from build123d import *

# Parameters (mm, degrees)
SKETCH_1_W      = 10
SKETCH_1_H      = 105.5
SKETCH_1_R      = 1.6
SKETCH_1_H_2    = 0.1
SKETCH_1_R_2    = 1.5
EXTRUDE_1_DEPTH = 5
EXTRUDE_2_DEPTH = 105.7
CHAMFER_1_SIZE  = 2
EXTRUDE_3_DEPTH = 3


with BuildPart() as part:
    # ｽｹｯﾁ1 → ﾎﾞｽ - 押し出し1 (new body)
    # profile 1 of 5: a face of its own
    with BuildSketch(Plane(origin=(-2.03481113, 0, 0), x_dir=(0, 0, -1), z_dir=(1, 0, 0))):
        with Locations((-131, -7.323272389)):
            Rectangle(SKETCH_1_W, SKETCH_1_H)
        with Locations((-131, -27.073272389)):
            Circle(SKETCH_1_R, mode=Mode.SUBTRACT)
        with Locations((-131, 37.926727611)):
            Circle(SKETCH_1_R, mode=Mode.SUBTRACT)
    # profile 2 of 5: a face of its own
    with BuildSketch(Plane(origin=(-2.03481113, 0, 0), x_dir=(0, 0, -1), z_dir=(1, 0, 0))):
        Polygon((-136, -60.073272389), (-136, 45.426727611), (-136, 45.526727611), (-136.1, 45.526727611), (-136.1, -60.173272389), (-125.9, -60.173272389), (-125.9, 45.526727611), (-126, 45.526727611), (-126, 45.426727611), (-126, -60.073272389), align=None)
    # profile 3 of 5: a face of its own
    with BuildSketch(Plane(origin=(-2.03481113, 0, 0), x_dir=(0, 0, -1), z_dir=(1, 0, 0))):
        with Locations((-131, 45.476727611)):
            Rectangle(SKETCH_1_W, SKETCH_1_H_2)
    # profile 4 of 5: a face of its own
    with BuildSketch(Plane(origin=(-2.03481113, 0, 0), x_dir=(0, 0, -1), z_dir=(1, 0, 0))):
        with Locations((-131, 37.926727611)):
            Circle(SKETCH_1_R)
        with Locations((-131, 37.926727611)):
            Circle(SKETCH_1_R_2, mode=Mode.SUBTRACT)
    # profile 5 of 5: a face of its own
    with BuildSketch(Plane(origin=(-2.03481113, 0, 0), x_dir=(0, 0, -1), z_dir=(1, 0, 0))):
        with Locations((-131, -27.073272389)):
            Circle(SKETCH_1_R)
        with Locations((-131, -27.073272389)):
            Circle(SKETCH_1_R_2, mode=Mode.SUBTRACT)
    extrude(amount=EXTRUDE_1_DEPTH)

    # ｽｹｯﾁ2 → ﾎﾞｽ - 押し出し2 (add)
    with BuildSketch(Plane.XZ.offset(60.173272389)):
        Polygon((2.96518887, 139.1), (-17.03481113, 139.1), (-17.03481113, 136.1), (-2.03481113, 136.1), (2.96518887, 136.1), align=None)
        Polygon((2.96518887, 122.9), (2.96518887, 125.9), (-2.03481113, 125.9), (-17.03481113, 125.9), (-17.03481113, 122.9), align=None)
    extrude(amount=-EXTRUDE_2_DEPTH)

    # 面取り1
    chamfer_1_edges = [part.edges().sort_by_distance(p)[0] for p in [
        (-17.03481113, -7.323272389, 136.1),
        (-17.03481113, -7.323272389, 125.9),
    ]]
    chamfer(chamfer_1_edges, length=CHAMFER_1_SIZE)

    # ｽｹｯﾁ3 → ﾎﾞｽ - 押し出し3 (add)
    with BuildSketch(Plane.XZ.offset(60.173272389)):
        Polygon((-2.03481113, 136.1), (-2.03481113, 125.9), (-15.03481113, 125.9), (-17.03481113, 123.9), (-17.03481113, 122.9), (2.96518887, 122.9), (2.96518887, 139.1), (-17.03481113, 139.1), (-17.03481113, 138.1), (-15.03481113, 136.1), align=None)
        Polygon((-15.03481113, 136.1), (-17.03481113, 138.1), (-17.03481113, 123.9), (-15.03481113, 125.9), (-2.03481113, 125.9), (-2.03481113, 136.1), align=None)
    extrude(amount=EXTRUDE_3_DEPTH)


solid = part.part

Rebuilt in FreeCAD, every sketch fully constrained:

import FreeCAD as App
import Part
import Sketcher
from FreeCAD import Vector


def edges_at(feature, points):
    """Names of the edges that pass closest to the given points."""
    edges = feature.Shape.Edges
    near = lambda p: min(range(len(edges)), key=lambda i: edges[i].distToShape(Part.Vertex(*p))[0])
    return sorted({f"Edge{near(p) + 1}" for p in points})


def add_polygon(sketch, points):
    """Adds a closed chain of lines whose ends are joined by coincident constraints."""
    first, n = sketch.GeometryCount, len(points)
    for a, b in zip(points, points[1:] + points[:1]):
        sketch.addGeometry(Part.LineSegment(App.Vector(*a, 0), App.Vector(*b, 0)), False)
    for i in range(n):
        sketch.addConstraint(Sketcher.Constraint("Coincident", first + i, 2, first + (i + 1) % n, 1))

doc = App.newDocument("Part")
params = doc.addObject("Spreadsheet::Sheet", "Params")
for row, (alias, value) in enumerate([
    ("sketch1_diameter", "3 mm"),
    ("sketch1_width", "105.7 mm"),
    ("sketch1_height", "10.2 mm"),
    ("pad1_length", "5 mm"),
    ("sketch2_width", "20 mm"),
    ("sketch2_height", "3 mm"),
    ("pad2_length", "105.7 mm"),
    ("chamfer_size", "2 mm"),
    ("sketch3_width", "20 mm"),
    ("sketch3_height", "16.2 mm"),
    ("pad3_length", "3 mm"),
], start=1):
    params.set(f"A{row}", alias)
    params.set(f"B{row}", "=" + value)
    params.setAlias(f"B{row}", alias)

body = doc.addObject("PartDesign::Body", "Body")

# Sketch on YZ plane
sketch1 = doc.addObject("Sketcher::SketchObject", "Sketch")
body.addObject(sketch1)
sketch1.AttachmentSupport = (doc.YZ_Plane, [""])
sketch1.MapMode = "FlatFace"
sketch1.AttachmentOffset = App.Placement(Vector(0, 0, -2.034811), App.Rotation())
add_polygon(sketch1, [(45.526728, 136.1), (-60.173272, 136.1), (-60.173272, 125.9), (45.526728, 125.9)])  # lines 0-3
sketch1.addGeometry(Part.Circle(Vector(-27.073272, 131, 0), Vector(0, 0, 1), 1.5), False)  # 4
sketch1.addGeometry(Part.Circle(Vector(37.926728, 131, 0), Vector(0, 0, 1), 1.5), False)  # 5
sketch1.addConstraint([
    Sketcher.Constraint("Horizontal", 0),
    Sketcher.Constraint("Vertical", 1),
    Sketcher.Constraint("Horizontal", 2),
    Sketcher.Constraint("Vertical", 3),
    Sketcher.Constraint("Equal", 4, 5),
    Sketcher.Constraint("Horizontal", 4, 3, 5, 3),
    Sketcher.Constraint("Diameter", 4, 3.0),
    Sketcher.Constraint("DistanceX", 0, 2, 0, 1, 105.7),
    Sketcher.Constraint("DistanceY", 1, 2, 1, 1, 10.2),
    Sketcher.Constraint("DistanceY", -1, 1, 4, 3, 131.0),
    Sketcher.Constraint("DistanceX", 4, 3, 5, 3, 65.0),
    Sketcher.Constraint("DistanceY", -1, 1, 0, 2, 136.1),
    Sketcher.Constraint("DistanceX", 0, 2, 4, 3, 33.1),
    Sketcher.Constraint("DistanceX", 4, 3, -1, 1, 27.073272),
])
sketch1.setExpression("Constraints[10]", "Params.sketch1_diameter")
sketch1.setExpression("Constraints[11]", "Params.sketch1_width")
sketch1.setExpression("Constraints[12]", "Params.sketch1_height")
pad1 = doc.addObject("PartDesign::Pad", "Pad")
body.addObject(pad1)
pad1.Profile = sketch1
pad1.setExpression("Length", "Params.pad1_length")

# Sketch on XZ plane
sketch2 = doc.addObject("Sketcher::SketchObject", "Sketch001")
body.addObject(sketch2)
sketch2.AttachmentSupport = (doc.XZ_Plane, [""])
sketch2.MapMode = "FlatFace"
sketch2.AttachmentOffset = App.Placement(Vector(0, 0, 60.173272), App.Rotation())
add_polygon(sketch2, [(2.965189, 139.1), (-17.034811, 139.1), (-17.034811, 136.1), (2.965189, 136.1)])  # lines 0-3
add_polygon(sketch2, [(2.965189, 122.9), (2.965189, 125.9), (-17.034811, 125.9), (-17.034811, 122.9)])  # lines 4-7
sketch2.addConstraint([
    Sketcher.Constraint("Horizontal", 0),
    Sketcher.Constraint("Vertical", 1),
    Sketcher.Constraint("Horizontal", 2),
    Sketcher.Constraint("Vertical", 3),
    Sketcher.Constraint("Vertical", 4),
    Sketcher.Constraint("Horizontal", 5),
    Sketcher.Constraint("Vertical", 6),
    Sketcher.Constraint("Horizontal", 7),
    Sketcher.Constraint("Vertical", 3, 2, 4, 2),
    Sketcher.Constraint("Vertical", 1, 2, 5, 2),
    Sketcher.Constraint("Equal", 3, 4),
    Sketcher.Constraint("DistanceX", 0, 2, 0, 1, 20.0),
    Sketcher.Constraint("DistanceY", 1, 2, 1, 1, 3.0),
    Sketcher.Constraint("DistanceY", -1, 1, 0, 2, 139.1),
    Sketcher.Constraint("DistanceY", -1, 1, 4, 2, 125.9),
    Sketcher.Constraint("DistanceX", 0, 2, -1, 1, 17.034811),
])
sketch2.setExpression("Constraints[19]", "Params.sketch2_width")
sketch2.setExpression("Constraints[20]", "Params.sketch2_height")
pad2 = doc.addObject("PartDesign::Pad", "Pad001")
body.addObject(pad2)
pad2.Profile = sketch2
pad2.setExpression("Length", "Params.pad2_length")
pad2.Reversed = True
doc.recompute()

chamfer = doc.addObject("PartDesign::Chamfer", "Chamfer")
body.addObject(chamfer)
chamfer.Base = (pad2, edges_at(pad2, [(-17.035, -7.323, 136.1), (-17.035, -7.323, 125.9)]))
chamfer.setExpression("Size", "Params.chamfer_size")

# Sketch on XZ plane
sketch3 = doc.addObject("Sketcher::SketchObject", "Sketch002")
body.addObject(sketch3)
sketch3.AttachmentSupport = (doc.XZ_Plane, [""])
sketch3.MapMode = "FlatFace"
sketch3.AttachmentOffset = App.Placement(Vector(0, 0, 60.173272), App.Rotation())
add_polygon(sketch3, [(-17.034811, 122.9), (2.965189, 122.9), (2.965189, 139.1), (-17.034811, 139.1)])  # lines 0-3
sketch3.addConstraint([
    Sketcher.Constraint("Horizontal", 0),
    Sketcher.Constraint("Vertical", 1),
    Sketcher.Constraint("Horizontal", 2),
    Sketcher.Constraint("Vertical", 3),
    Sketcher.Constraint("DistanceX", 0, 1, 0, 2, 20.0),
    Sketcher.Constraint("DistanceY", 1, 1, 1, 2, 16.2),
    Sketcher.Constraint("DistanceY", -1, 1, 0, 2, 122.9),
    Sketcher.Constraint("DistanceX", -1, 1, 0, 2, 2.965189),
])
sketch3.setExpression("Constraints[8]", "Params.sketch3_width")
sketch3.setExpression("Constraints[9]", "Params.sketch3_height")
pad3 = doc.addObject("PartDesign::Pad", "Pad002")
body.addObject(pad3)
pad3.Profile = sketch3
pad3.setExpression("Length", "Params.pad3_length")

doc.recompute()
